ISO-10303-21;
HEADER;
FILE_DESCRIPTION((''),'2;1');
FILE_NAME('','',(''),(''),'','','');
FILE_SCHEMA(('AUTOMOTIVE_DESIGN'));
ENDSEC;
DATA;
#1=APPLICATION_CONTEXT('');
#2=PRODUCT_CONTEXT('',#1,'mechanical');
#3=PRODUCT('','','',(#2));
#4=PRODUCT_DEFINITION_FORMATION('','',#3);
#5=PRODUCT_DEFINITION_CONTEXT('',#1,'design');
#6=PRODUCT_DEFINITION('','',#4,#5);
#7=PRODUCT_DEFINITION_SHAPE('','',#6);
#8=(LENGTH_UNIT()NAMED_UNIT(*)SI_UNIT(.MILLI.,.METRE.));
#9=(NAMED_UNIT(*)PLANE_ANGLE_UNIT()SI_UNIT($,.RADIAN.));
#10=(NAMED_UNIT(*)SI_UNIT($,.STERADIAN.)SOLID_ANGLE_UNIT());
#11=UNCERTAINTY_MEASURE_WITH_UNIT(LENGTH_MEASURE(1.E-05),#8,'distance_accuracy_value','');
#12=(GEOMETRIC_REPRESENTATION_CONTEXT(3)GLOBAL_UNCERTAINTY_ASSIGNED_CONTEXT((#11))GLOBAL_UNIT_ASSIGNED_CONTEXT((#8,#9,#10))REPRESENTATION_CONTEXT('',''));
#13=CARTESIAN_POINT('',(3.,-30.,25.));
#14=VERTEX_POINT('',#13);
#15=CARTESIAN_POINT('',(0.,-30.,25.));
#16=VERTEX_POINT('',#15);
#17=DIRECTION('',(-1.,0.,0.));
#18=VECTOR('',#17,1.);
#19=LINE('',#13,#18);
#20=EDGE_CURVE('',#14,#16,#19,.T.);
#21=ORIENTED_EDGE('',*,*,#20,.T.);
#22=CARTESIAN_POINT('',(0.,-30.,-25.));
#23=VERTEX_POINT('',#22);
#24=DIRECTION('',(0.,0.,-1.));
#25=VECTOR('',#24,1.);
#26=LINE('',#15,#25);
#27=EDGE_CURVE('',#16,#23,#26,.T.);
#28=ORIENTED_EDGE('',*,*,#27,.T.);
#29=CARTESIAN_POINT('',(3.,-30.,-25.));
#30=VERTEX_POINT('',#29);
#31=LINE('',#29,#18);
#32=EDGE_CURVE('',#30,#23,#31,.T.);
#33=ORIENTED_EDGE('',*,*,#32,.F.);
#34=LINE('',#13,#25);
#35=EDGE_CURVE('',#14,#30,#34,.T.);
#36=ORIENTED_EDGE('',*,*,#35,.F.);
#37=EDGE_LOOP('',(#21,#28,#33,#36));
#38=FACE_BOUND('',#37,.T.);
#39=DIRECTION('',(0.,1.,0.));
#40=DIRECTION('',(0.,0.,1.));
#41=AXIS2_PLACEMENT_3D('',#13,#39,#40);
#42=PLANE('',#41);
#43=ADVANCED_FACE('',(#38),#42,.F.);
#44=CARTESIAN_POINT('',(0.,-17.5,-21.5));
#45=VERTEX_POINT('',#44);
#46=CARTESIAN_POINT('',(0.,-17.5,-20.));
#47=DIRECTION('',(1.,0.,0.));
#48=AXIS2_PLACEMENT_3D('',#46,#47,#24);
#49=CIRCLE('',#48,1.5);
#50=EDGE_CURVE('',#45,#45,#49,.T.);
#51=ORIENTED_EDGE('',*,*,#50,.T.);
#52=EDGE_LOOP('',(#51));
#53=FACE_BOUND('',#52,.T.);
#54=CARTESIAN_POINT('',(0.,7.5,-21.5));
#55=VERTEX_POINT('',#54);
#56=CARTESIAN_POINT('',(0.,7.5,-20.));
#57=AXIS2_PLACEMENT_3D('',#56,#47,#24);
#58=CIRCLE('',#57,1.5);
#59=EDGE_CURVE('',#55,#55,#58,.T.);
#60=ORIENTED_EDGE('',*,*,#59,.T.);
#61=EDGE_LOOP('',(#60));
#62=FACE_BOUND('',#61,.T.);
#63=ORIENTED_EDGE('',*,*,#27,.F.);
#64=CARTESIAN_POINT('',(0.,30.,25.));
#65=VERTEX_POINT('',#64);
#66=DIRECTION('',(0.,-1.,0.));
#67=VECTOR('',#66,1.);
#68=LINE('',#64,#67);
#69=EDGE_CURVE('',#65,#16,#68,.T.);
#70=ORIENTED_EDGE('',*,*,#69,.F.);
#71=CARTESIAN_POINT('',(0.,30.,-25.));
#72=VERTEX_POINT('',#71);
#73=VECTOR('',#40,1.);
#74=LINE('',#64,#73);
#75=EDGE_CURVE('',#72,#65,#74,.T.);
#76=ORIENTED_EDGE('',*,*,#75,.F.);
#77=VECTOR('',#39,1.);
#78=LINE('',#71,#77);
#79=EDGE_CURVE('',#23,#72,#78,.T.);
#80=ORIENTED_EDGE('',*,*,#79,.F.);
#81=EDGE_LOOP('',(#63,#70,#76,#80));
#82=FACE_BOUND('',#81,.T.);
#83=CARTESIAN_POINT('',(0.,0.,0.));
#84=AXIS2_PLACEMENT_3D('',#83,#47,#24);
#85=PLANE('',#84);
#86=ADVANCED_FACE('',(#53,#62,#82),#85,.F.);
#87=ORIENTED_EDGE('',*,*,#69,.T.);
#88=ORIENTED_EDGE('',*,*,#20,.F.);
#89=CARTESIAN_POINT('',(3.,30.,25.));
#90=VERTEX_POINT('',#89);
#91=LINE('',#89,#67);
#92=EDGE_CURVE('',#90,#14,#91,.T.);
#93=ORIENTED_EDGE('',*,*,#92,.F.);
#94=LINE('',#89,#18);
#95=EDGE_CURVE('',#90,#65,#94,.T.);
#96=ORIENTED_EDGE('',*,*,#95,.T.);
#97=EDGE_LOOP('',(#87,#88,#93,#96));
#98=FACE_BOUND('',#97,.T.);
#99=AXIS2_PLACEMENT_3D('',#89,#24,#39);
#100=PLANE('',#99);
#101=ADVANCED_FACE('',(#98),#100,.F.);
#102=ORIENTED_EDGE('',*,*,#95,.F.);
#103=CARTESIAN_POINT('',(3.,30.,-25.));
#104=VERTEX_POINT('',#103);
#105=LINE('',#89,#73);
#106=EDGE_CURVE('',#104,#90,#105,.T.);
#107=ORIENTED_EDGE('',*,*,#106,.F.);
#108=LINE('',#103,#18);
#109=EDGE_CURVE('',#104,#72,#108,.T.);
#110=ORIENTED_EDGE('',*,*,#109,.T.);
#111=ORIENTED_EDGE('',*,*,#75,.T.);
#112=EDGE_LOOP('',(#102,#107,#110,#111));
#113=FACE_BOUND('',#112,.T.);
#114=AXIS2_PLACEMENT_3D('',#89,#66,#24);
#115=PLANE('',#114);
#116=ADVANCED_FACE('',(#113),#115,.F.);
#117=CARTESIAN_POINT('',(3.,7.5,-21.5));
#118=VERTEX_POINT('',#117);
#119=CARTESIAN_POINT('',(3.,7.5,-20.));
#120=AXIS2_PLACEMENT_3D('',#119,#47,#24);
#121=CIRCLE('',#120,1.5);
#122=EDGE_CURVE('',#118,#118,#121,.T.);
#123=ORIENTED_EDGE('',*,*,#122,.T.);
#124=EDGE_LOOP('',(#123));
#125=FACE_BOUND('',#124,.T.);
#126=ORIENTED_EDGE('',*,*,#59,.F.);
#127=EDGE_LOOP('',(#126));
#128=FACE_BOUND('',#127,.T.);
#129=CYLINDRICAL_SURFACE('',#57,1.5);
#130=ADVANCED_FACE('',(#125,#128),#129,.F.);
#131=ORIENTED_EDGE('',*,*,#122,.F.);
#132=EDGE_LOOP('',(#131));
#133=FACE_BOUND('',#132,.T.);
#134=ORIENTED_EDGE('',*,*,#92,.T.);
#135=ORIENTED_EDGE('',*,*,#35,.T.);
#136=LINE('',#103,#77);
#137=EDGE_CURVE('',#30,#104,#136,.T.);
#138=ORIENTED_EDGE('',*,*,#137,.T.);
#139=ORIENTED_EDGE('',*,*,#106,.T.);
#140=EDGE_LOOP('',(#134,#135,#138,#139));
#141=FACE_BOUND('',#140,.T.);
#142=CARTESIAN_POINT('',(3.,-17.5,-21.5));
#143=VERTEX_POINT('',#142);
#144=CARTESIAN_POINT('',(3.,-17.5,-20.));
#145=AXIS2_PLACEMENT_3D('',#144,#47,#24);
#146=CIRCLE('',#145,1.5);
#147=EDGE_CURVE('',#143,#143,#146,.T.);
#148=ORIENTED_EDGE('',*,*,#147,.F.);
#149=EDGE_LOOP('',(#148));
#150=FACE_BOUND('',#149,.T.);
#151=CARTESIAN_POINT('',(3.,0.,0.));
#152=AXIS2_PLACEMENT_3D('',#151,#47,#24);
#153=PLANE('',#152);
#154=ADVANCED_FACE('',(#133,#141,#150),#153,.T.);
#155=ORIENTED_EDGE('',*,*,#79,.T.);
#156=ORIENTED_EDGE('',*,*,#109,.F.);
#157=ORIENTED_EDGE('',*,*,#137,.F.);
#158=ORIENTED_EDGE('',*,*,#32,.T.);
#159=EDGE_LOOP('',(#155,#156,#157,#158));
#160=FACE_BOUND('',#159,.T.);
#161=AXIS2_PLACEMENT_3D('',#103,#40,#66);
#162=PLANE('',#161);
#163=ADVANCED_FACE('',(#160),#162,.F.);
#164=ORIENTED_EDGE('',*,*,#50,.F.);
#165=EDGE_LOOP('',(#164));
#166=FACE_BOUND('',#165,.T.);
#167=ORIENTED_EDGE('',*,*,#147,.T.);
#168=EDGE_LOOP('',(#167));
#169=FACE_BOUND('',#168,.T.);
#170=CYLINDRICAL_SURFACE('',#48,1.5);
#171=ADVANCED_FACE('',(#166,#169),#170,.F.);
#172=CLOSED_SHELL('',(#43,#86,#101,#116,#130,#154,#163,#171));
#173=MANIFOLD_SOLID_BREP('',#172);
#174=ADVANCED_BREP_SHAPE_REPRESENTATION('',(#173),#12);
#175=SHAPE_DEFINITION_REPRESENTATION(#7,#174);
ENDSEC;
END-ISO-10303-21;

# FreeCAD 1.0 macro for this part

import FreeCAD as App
import Part
import Sketcher

doc = App.newDocument("Part")
params = doc.addObject("Spreadsheet::Sheet", "Params")
for row, (alias, value) in enumerate([
    ("sketch1_width", "60 mm"),
    ("sketch1_height", "50 mm"),
    ("pad1_length", "3 mm"),
    ("sketch2_diameter", "3 mm"),
], start=1):
    params.set(f"A{row}", alias)
    params.set(f"B{row}", "=" + value)
    params.setAlias(f"B{row}", alias)

body = doc.addObject("PartDesign::Body", "Body")

# Sketch on YZ plane
sketch1 = body.newObject("Sketcher::SketchObject", "Sketch")
sketch1.AttachmentSupport = (doc.getObject("YZ_Plane"), [""])
sketch1.MapMode = "FlatFace"
sketch1.addGeometry([
    Part.LineSegment(App.Vector(30, 25, 0), App.Vector(-30, 25, 0)),
    Part.LineSegment(App.Vector(-30, 25, 0), App.Vector(-30, -25, 0)),
    Part.LineSegment(App.Vector(-30, -25, 0), App.Vector(30, -25, 0)),
    Part.LineSegment(App.Vector(30, -25, 0), App.Vector(30, 25, 0)),
], False)
sketch1.addConstraint([
    Sketcher.Constraint("Coincident", 0, 2, 1, 1),
    Sketcher.Constraint("Coincident", 1, 2, 2, 1),
    Sketcher.Constraint("Coincident", 2, 2, 3, 1),
    Sketcher.Constraint("Coincident", 3, 2, 0, 1),
    Sketcher.Constraint("Horizontal", 0),
    Sketcher.Constraint("Vertical", 1),
    Sketcher.Constraint("Horizontal", 2),
    Sketcher.Constraint("Vertical", 3),
    Sketcher.Constraint("Symmetric", 0, 2, 2, 2, -1, 1),
    Sketcher.Constraint("DistanceX", 0, 2, 0, 1, 60.0),
    Sketcher.Constraint("DistanceY", 1, 2, 1, 1, 50.0),
])
sketch1.setExpression("Constraints[9]", "Params.sketch1_width")
sketch1.setExpression("Constraints[10]", "Params.sketch1_height")
pad1 = body.newObject("PartDesign::Pad", "Pad")
pad1.Profile = sketch1
pad1.setExpression("Length", "Params.pad1_length")

# Sketch on YZ plane
sketch2 = body.newObject("Sketcher::SketchObject", "Sketch001")
sketch2.AttachmentSupport = (doc.getObject("YZ_Plane"), [""])
sketch2.MapMode = "FlatFace"
sketch2.AttachmentOffset = App.Placement(App.Vector(0, 0, 3), App.Rotation())
sketch2.addGeometry([
    Part.Circle(App.Vector(7.5, -20, 0), App.Vector(0, 0, 1), 1.5),
    Part.Circle(App.Vector(-17.5, -20, 0), App.Vector(0, 0, 1), 1.5),
], False)
sketch2.addConstraint([
    Sketcher.Constraint("Equal", 0, 1),
    Sketcher.Constraint("Horizontal", 0, 3, 1, 3),
    Sketcher.Constraint("Diameter", 0, 3.0),
    Sketcher.Constraint("DistanceY", 0, 3, -1, 1, 20.0),
    Sketcher.Constraint("DistanceX", 1, 3, 0, 3, 25.0),
    Sketcher.Constraint("DistanceX", -1, 1, 0, 3, 7.5),
])
sketch2.setExpression("Constraints[2]", "Params.sketch2_diameter")
pocket1 = body.newObject("PartDesign::Pocket", "Pocket")
pocket1.Profile = sketch2
pocket1.Type = "ThroughAll"

doc.recompute()
